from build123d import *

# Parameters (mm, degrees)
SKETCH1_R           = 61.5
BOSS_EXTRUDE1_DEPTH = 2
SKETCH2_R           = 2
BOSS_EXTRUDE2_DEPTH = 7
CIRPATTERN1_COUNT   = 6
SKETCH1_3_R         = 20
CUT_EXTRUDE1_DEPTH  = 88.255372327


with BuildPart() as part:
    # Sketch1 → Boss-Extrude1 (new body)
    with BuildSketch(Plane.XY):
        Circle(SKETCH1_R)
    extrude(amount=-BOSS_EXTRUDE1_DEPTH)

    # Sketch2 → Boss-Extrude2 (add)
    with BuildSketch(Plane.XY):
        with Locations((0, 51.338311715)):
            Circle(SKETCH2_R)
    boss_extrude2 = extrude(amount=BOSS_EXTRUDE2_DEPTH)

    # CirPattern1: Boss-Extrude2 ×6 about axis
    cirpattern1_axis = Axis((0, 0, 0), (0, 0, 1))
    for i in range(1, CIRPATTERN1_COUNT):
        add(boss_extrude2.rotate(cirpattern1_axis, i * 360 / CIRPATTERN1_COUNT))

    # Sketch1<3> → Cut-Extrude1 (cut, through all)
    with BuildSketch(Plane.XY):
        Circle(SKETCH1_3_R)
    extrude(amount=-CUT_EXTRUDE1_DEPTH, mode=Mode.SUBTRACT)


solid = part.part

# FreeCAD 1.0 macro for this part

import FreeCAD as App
import Part
import Sketcher
from FreeCAD import Vector
Q = App.Units.Quantity

doc = App.newDocument("Part")
body = doc.addObject("PartDesign::Body", "Body")

# Sketch on XY plane
sketch1 = body.newObject("Sketcher::SketchObject", "Sketch")
sketch1.AttachmentSupport = (doc.getObject("XY_Plane"), [""])
sketch1.MapMode = "FlatFace"
sketch1.addGeometry(Part.Circle(Vector(0, 0, 0), Vector(0, 0, 1), 61.5), False)
sketch1.addConstraint(Sketcher.Constraint("Coincident", 0, 3, -1, 1))
sketch1.addConstraint(Sketcher.Constraint("Diameter", 0, Q("123 mm")))
pad1 = body.newObject("PartDesign::Pad", "Pad")
pad1.Profile = sketch1
pad1.Length = 2
pad1.Reversed = True

# Sketch on XY plane
sketch2 = body.newObject("Sketcher::SketchObject", "Sketch001")
sketch2.AttachmentSupport = (doc.getObject("XY_Plane"), [""])
sketch2.MapMode = "FlatFace"
sketch2.addGeometry(Part.Circle(Vector(0, 51.338312, 0), Vector(0, 0, 1), 2), False)
sketch2.addConstraint(Sketcher.Constraint("PointOnObject", 0, 3, -2))
sketch2.addConstraint(Sketcher.Constraint("Diameter", 0, Q("4 mm")))
sketch2.addConstraint(Sketcher.Constraint("DistanceY", -1, 1, 0, 3, Q("51.338312 mm")))
pad2 = body.newObject("PartDesign::Pad", "Pad001")
pad2.Profile = sketch2
pad2.Length = 7
doc.recompute()

polarpattern = body.newObject("PartDesign::PolarPattern", "PolarPattern")
polarpattern.Originals = [pad2]
polarpattern.Axis = (doc.getObject("Z_Axis"), [""])
polarpattern.Angle = 360
polarpattern.Occurrences = 6
body.Tip = polarpattern

# Sketch on XY plane
sketch3 = body.newObject("Sketcher::SketchObject", "Sketch002")
sketch3.AttachmentSupport = (doc.getObject("XY_Plane"), [""])
sketch3.MapMode = "FlatFace"
sketch3.addGeometry(Part.Circle(Vector(0, 0, 0), Vector(0, 0, 1), 20), False)
sketch3.addConstraint(Sketcher.Constraint("Coincident", 0, 3, -1, 1))
sketch3.addConstraint(Sketcher.Constraint("Diameter", 0, Q("40 mm")))
pocket1 = body.newObject("PartDesign::Pocket", "Pocket")
pocket1.Profile = sketch3
pocket1.Type = "ThroughAll"

doc.recompute()
